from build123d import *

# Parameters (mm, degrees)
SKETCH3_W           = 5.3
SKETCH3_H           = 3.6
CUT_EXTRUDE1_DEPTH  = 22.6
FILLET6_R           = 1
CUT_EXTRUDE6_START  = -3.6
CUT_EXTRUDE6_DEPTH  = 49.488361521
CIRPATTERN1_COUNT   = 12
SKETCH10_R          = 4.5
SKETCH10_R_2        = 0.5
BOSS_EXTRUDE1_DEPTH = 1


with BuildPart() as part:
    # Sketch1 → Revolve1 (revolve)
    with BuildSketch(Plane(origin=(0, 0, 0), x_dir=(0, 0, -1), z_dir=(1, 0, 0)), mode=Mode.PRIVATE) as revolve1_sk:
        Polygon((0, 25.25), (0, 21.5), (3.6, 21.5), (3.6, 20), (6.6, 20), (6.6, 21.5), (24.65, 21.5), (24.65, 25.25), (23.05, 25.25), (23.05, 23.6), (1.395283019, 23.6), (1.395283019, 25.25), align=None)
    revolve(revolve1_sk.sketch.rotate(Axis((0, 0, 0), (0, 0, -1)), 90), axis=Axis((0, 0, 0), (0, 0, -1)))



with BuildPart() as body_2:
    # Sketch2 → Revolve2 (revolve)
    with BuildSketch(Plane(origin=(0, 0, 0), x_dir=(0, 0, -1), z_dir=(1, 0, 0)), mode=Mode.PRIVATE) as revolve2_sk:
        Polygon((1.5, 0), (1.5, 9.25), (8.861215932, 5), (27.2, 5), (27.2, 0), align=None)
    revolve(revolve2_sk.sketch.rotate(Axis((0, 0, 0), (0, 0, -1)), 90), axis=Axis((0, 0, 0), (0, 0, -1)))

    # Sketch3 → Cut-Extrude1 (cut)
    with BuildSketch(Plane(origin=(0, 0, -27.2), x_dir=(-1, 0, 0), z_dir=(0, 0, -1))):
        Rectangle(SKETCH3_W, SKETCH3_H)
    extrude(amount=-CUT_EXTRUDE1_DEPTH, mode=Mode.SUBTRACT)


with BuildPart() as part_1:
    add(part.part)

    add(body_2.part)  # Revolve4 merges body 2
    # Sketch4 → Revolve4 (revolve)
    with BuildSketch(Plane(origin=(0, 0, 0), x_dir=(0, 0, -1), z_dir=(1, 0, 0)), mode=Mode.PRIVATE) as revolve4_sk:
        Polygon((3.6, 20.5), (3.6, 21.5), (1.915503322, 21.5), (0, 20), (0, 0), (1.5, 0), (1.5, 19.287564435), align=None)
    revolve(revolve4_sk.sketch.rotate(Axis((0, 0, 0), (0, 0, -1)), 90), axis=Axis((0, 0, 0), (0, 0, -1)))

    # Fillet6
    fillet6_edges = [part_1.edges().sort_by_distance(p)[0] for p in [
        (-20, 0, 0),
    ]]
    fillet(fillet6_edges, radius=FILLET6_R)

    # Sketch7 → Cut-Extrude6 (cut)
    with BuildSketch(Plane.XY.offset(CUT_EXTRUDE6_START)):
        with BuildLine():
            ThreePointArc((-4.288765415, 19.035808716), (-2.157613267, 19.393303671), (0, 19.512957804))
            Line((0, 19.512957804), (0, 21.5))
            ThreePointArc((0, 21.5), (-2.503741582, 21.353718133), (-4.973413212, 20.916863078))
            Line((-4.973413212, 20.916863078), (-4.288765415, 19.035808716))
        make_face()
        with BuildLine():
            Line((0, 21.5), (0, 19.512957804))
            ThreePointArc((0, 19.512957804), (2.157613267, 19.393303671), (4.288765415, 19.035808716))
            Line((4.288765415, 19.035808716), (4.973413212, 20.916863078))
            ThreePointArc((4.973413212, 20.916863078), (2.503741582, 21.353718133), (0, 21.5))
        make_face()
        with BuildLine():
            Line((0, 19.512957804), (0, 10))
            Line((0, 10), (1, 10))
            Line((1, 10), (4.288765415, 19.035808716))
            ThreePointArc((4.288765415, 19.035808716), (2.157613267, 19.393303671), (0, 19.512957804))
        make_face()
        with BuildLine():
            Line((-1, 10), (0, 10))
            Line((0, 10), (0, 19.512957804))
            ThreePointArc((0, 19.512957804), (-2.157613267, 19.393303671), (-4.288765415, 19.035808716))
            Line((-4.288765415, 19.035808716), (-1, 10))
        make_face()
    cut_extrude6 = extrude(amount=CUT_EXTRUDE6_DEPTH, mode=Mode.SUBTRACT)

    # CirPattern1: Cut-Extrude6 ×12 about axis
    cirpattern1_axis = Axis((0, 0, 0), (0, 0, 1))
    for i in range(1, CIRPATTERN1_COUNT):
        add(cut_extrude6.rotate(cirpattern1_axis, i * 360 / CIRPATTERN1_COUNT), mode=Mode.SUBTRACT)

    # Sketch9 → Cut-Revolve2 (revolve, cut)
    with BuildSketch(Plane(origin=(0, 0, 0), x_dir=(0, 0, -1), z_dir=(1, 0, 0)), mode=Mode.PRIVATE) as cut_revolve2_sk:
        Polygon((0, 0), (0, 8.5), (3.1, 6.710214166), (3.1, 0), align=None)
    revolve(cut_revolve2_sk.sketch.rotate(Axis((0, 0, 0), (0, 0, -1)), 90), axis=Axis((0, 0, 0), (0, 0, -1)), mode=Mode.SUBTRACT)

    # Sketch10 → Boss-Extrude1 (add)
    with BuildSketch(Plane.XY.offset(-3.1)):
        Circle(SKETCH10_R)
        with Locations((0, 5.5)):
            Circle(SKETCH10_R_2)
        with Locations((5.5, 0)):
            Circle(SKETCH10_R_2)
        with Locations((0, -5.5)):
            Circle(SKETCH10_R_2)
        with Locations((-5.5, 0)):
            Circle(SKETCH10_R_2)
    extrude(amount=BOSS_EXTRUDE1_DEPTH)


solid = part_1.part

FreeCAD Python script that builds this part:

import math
import FreeCAD as App
import Part
import Sketcher

V = App.Vector
Q = App.Units.Quantity


def edges_at(feature, points):
    """Names of the edges that pass closest to the given points."""
    edges = feature.Shape.Edges
    near = lambda p: min(range(len(edges)), key=lambda i: edges[i].distToShape(Part.Vertex(*p))[0])
    return sorted({f"Edge{near(p) + 1}" for p in points})


def add_polygon(sketch, points):
    """Adds a closed chain of lines whose ends are joined by coincident constraints."""
    first, n = sketch.GeometryCount, len(points)
    for a, b in zip(points, points[1:] + points[:1]):
        sketch.addGeometry(Part.LineSegment(App.Vector(*a, 0), App.Vector(*b, 0)), False)
    for i in range(n):
        sketch.addConstraint(Sketcher.Constraint("Coincident", first + i, 2, first + (i + 1) % n, 1))

doc = App.newDocument("Part")
body = doc.addObject("PartDesign::Body", "Body")

# Sketch on YZ plane
sketch1 = body.newObject("Sketcher::SketchObject", "Sketch")
sketch1.AttachmentSupport = (doc.getObject("YZ_Plane"), [""])
sketch1.MapMode = "FlatFace"
add_polygon(sketch1, [(25.2, 0), (21.5, 0), (21.5, -3.6), (20, -3.6), (20, -6.6), (21.5, -6.6), (21.5, -24.6), (25.2, -24.6), (25.2, -23.1), (23.6, -23.1), (23.6, -1.4), (25.2, -1.4)])  # lines 0-11
sketch1.addConstraint([
    Sketcher.Constraint("Horizontal", 0),
    Sketcher.Constraint("Vertical", 1),
    Sketcher.Constraint("Horizontal", 2),
    Sketcher.Constraint("Vertical", 3),
    Sketcher.Constraint("Horizontal", 4),
    Sketcher.Constraint("Vertical", 5),
    Sketcher.Constraint("Horizontal", 6),
    Sketcher.Constraint("Vertical", 7),
    Sketcher.Constraint("Horizontal", 8),
    Sketcher.Constraint("Vertical", 9),
    Sketcher.Constraint("Horizontal", 10),
    Sketcher.Constraint("Vertical", 11),
    Sketcher.Constraint("PointOnObject", 0, 2, -1),
    Sketcher.Constraint("Vertical", 1, 2, 4, 2),
    Sketcher.Constraint("Vertical", 7, 2, 10, 2),
    Sketcher.Constraint("DistanceY", 3, 2, 3, 1, 3.0),
    Sketcher.Constraint("DistanceX", 2, 2, 2, 1, 1.5),
    Sketcher.Constraint("DistanceY", 1, 2, 1, 1, 3.6),
    Sketcher.Constraint("DistanceY", 7, 1, 7, 2, 1.6),
    Sketcher.Constraint("DistanceX", -1, 1, 2, 2, 20.0),
    Sketcher.Constraint("DistanceX", 0, 2, 0, 1, 3.75),
    Sketcher.Constraint("DistanceX", 8, 2, 8, 1, 1.65),
    Sketcher.Constraint("DistanceY", 5, 2, 5, 1, 18.05),
    Sketcher.Constraint("DistanceY", 9, 1, 9, 2, 21.654717),
])
revolution = body.newObject("PartDesign::Revolution", "Revolution")
revolution.Profile = sketch1
revolution.ReferenceAxis = (sketch1, ["V_Axis"])
revolution.Angle = 360
body2 = doc.addObject("PartDesign::Body", "Body001")

# Sketch on YZ plane
sketch2 = body2.newObject("Sketcher::SketchObject", "Sketch001")
sketch2.AttachmentSupport = (doc.getObject("YZ_Plane001"), [""])
sketch2.MapMode = "FlatFace"
add_polygon(sketch2, [(9, -2), (0, -2), (0, -27), (5, -27), (5, -9)])  # lines 0-4
sketch2.addConstraint([
    Sketcher.Constraint("Horizontal", 0),
    Sketcher.Constraint("Vertical", 1),
    Sketcher.Constraint("Horizontal", 2),
    Sketcher.Constraint("Vertical", 3),
    Sketcher.Constraint("PointOnObject", 0, 2, -2),
    Sketcher.Constraint("DistanceX", 2, 1, 2, 2, 5.0),
    Sketcher.Constraint("Angle", 4, Q("60 deg")),
    Sketcher.Constraint("DistanceY", 1, 2, 1, 1, 25.7),
    Sketcher.Constraint("Distance", 4, 8.5),
    Sketcher.Constraint("DistanceY", 0, 2, -1, 1, 1.5),
])
revolution2 = body2.newObject("PartDesign::Revolution", "Revolution001")
revolution2.Profile = sketch2
revolution2.ReferenceAxis = (sketch2, ["V_Axis"])
revolution2.Angle = 360

# Sketch on XY plane
sketch3 = body2.newObject("Sketcher::SketchObject", "Sketch002")
sketch3.AttachmentSupport = (doc.getObject("XY_Plane001"), [""])
sketch3.MapMode = "FlatFace"
sketch3.AttachmentOffset = App.Placement(V(0, 0, -27.2), App.Rotation())
add_polygon(sketch3, [(2.6, 1.8), (2.6, -1.8), (-2.6, -1.8), (-2.6, 1.8)])  # lines 0-3
sketch3.addConstraint([
    Sketcher.Constraint("Vertical", 0),
    Sketcher.Constraint("Horizontal", 1),
    Sketcher.Constraint("Vertical", 2),
    Sketcher.Constraint("Horizontal", 3),
    Sketcher.Constraint("Symmetric", 0, 2, 2, 2, -1, 1),
    Sketcher.Constraint("DistanceX", 1, 2, 1, 1, 5.3),
    Sketcher.Constraint("DistanceY", 0, 2, 0, 1, 3.6),
])
pocket1 = body2.newObject("PartDesign::Pocket", "Pocket")
pocket1.Profile = sketch3
pocket1.Length = 22.6
pocket1.Reversed = True
body.AllowCompound = True
doc.recompute()

boolean = body.newObject("PartDesign::Boolean", "Boolean")
boolean.Type = "Fuse"
boolean.addObjects([body2])

# Sketch on YZ plane
sketch4 = body.newObject("Sketcher::SketchObject", "Sketch003")
sketch4.AttachmentSupport = (doc.getObject("YZ_Plane"), [""])
sketch4.MapMode = "FlatFace"
add_polygon(sketch4, [(20.5, -3.6), (21.5, -3.6), (21.5, -1.9), (20, 0), (0, 0), (0, -1.5), (19.3, -1.5)])  # lines 0-6
sketch4.addConstraint([
    Sketcher.Constraint("Horizontal", 0),
    Sketcher.Constraint("Vertical", 1),
    Sketcher.Constraint("Horizontal", 3),
    Sketcher.Constraint("Vertical", 4),
    Sketcher.Constraint("Horizontal", 5),
    Sketcher.Constraint("Coincident", 3, 2, -1, 1),
    Sketcher.Constraint("DistanceX", 0, 1, 0, 2, 1.0),
    Sketcher.Constraint("DistanceX", 3, 2, 3, 1, 20.0),
    Sketcher.Constraint("Angle", 6, Q("-60 deg")),
    Sketcher.Constraint("DistanceY", 4, 2, 4, 1, 1.5),
    Sketcher.Constraint("DistanceX", -1, 1, 0, 2, 21.5),
    Sketcher.Constraint("DistanceY", 0, 2, -1, 1, 3.6),
    Sketcher.Constraint("Distance", 2, 2.432931),
])
revolution3 = body.newObject("PartDesign::Revolution", "Revolution002")
revolution3.Profile = sketch4
revolution3.ReferenceAxis = (sketch4, ["V_Axis"])
revolution3.Angle = 360
doc.recompute()

fillet = body.newObject("PartDesign::Fillet", "Fillet")
fillet.Base = (revolution3, edges_at(revolution3, [(-20, 0, 0)]))
fillet.Radius = 1

# Sketch on XY plane
sketch5 = body.newObject("Sketcher::SketchObject", "Sketch004")
sketch5.AttachmentSupport = (doc.getObject("XY_Plane"), [""])
sketch5.MapMode = "FlatFace"
sketch5.AttachmentOffset = App.Placement(V(0, 0, -3.6), App.Rotation())
sketch5.addGeometry([
    Part.LineSegment(V(1, 10, 0), V(4.3, 19, 0)),  # 0
    Part.LineSegment(V(4.3, 19, 0), V(5, 20.9, 0)),  # 1
    Part.ArcOfCircle(Part.Circle(V(0, 0, 0), V(0, 0, 1), 21.5), math.radians(76.63), math.radians(90)),  # 2
    Part.ArcOfCircle(Part.Circle(V(0, 0, 0), V(0, 0, 1), 21.5), math.radians(90), math.radians(103.37)),  # 3
    Part.LineSegment(V(-5, 20.9, 0), V(-4.3, 19, 0)),  # 4
    Part.LineSegment(V(-4.3, 19, 0), V(-1, 10, 0)),  # 5
    Part.LineSegment(V(-1, 10, 0), V(1, 10, 0)),  # 6
], False)
sketch5.addConstraint([
    Sketcher.Constraint("Coincident", 0, 2, 1, 1),
    Sketcher.Constraint("Coincident", 1, 2, 2, 1),
    Sketcher.Constraint("Tangent", 2, 2, 3, 1),
    Sketcher.Constraint("Coincident", 3, 2, 4, 1),
    Sketcher.Constraint("Coincident", 4, 2, 5, 1),
    Sketcher.Constraint("Coincident", 5, 2, 6, 1),
    Sketcher.Constraint("Coincident", 6, 2, 0, 1),
    Sketcher.Constraint("Horizontal", 6),
    Sketcher.Constraint("Coincident", 2, 3, -1, 1),
    Sketcher.Constraint("Equal", 2, 3),
    Sketcher.Constraint("Symmetric", 0, 2, 4, 2, -2),
    Sketcher.Constraint("PointOnObject", 2, 2, -2),
    Sketcher.Constraint("Parallel", 0, 1),
    Sketcher.Constraint("Parallel", 4, 5),
    Sketcher.Constraint("Horizontal", 1, 2, 3, 2),
    Sketcher.Constraint("Radius", 2, 21.5),
    Sketcher.Constraint("DistanceX", 6, 1, 6, 2, 2.0),
    Sketcher.Constraint("Angle", 0, Q("70 deg")),
    Sketcher.Constraint("DistanceY", -1, 1, 5, 2, 10.0),
    Sketcher.Constraint("DistanceY", -1, 1, 0, 2, 19.035809),
])
pocket2 = body.newObject("PartDesign::Pocket", "Pocket001")
pocket2.Profile = sketch5
pocket2.Length = 49.488362
pocket2.Reversed = True
doc.recompute()

polarpattern = body.newObject("PartDesign::PolarPattern", "PolarPattern")
polarpattern.Originals = [pocket2]
polarpattern.Axis = (doc.getObject("Z_Axis"), [""])
polarpattern.Angle = 360
polarpattern.Occurrences = 12
body.Tip = polarpattern

# Sketch on YZ plane
sketch6 = body.newObject("Sketcher::SketchObject", "Sketch005")
sketch6.AttachmentSupport = (doc.getObject("YZ_Plane"), [""])
sketch6.MapMode = "FlatFace"
add_polygon(sketch6, [(8.5, 0), (0, 0), (0, -3.1), (6.7, -3.1)])  # lines 0-3
sketch6.addConstraint([
    Sketcher.Constraint("Horizontal", 0),
    Sketcher.Constraint("Vertical", 1),
    Sketcher.Constraint("Horizontal", 2),
    Sketcher.Constraint("Coincident", 0, 2, -1, 1),
    Sketcher.Constraint("Angle", 3, Q("60 deg")),
    Sketcher.Constraint("DistanceX", 0, 2, 0, 1, 8.5),
    Sketcher.Constraint("DistanceY", 1, 2, 1, 1, 3.1),
])
groove = body.newObject("PartDesign::Groove", "Groove")
groove.Profile = sketch6
groove.ReferenceAxis = (sketch6, ["V_Axis"])
groove.Angle = 360

# Sketch on XY plane
sketch7 = body.newObject("Sketcher::SketchObject", "Sketch006")
sketch7.AttachmentSupport = (doc.getObject("XY_Plane"), [""])
sketch7.MapMode = "FlatFace"
sketch7.AttachmentOffset = App.Placement(V(0, 0, -3.1), App.Rotation())
sketch7.addGeometry([
    Part.Circle(V(0, 0, 0), V(0, 0, 1), 4.5),  # 0
    Part.Circle(V(0, 5.5, 0), V(0, 0, 1), 0.5),  # 1
    Part.Circle(V(5.5, 0, 0), V(0, 0, 1), 0.5),  # 2
    Part.Circle(V(0, -5.5, 0), V(0, 0, 1), 0.5),  # 3
    Part.Circle(V(-5.5, 0, 0), V(0, 0, 1), 0.5),  # 4
], False)
sketch7.addConstraint([
    Sketcher.Constraint("Coincident", 0, 3, -1, 1),
    Sketcher.Constraint("Equal", 1, 2),
    Sketcher.Constraint("Equal", 2, 3),
    Sketcher.Constraint("Equal", 3, 4),
    Sketcher.Constraint("Symmetric", 1, 3, 3, 3, -1, 1),
    Sketcher.Constraint("Symmetric", 2, 3, 4, 3, -1, 1),
    Sketcher.Constraint("PointOnObject", 1, 3, -2),
    Sketcher.Constraint("PointOnObject", 2, 3, -1),
    Sketcher.Constraint("Diameter", 0, 9.0),
    Sketcher.Constraint("Diameter", 1, 1.0),
    Sketcher.Constraint("DistanceY", 3, 3, 1, 3, 11.0),
    Sketcher.Constraint("DistanceX", 4, 3, 2, 3, 11.0),
])
pad1 = body.newObject("PartDesign::Pad", "Pad")
pad1.Profile = sketch7
pad1.Length = 1

doc.recompute()
